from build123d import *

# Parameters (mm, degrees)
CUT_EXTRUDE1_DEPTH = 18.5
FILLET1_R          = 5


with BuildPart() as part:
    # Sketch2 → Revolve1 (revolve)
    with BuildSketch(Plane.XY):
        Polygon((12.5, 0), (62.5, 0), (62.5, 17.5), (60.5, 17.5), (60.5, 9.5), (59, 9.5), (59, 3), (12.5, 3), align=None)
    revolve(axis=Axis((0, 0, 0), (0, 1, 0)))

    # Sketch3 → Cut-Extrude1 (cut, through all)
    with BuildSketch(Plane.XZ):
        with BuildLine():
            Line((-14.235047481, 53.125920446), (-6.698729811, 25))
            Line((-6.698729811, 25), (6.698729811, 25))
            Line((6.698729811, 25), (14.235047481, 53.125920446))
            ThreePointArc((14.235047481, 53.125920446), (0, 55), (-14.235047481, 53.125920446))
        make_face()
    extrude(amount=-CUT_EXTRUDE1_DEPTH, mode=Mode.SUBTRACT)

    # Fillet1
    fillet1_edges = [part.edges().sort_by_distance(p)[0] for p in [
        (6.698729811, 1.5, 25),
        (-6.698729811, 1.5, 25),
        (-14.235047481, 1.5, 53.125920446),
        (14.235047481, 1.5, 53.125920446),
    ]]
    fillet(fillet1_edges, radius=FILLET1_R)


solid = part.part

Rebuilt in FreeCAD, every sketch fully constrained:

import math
import FreeCAD as App
import Part
import Sketcher

V = App.Vector
Q = App.Units.Quantity


def edges_at(feature, points):
    """Names of the edges that pass closest to the given points."""
    edges = feature.Shape.Edges
    near = lambda p: min(range(len(edges)), key=lambda i: edges[i].distToShape(Part.Vertex(*p))[0])
    return sorted({f"Edge{near(p) + 1}" for p in points})

doc = App.newDocument("Part")
body = doc.addObject("PartDesign::Body", "Body")

# Sketch on XY plane
sketch1 = body.newObject("Sketcher::SketchObject", "Sketch")
sketch1.AttachmentSupport = (doc.getObject("XY_Plane"), [""])
sketch1.MapMode = "FlatFace"
sketch1.addGeometry([
    Part.LineSegment(V(12.5, 0, 0), V(62.5, 0, 0)),  # 0
    Part.LineSegment(V(62.5, 0, 0), V(62.5, 17.5, 0)),  # 1
    Part.LineSegment(V(62.5, 17.5, 0), V(60.5, 17.5, 0)),  # 2
    Part.LineSegment(V(60.5, 17.5, 0), V(60.5, 9.5, 0)),  # 3
    Part.LineSegment(V(60.5, 9.5, 0), V(59, 9.5, 0)),  # 4
    Part.LineSegment(V(59, 9.5, 0), V(59, 3, 0)),  # 5
    Part.LineSegment(V(59, 3, 0), V(12.5, 3, 0)),  # 6
    Part.LineSegment(V(12.5, 3, 0), V(12.5, 0, 0)),  # 7
], False)
sketch1.addConstraint([
    Sketcher.Constraint("Coincident", 0, 2, 1, 1),
    Sketcher.Constraint("Coincident", 1, 2, 2, 1),
    Sketcher.Constraint("Coincident", 2, 2, 3, 1),
    Sketcher.Constraint("Coincident", 3, 2, 4, 1),
    Sketcher.Constraint("Coincident", 4, 2, 5, 1),
    Sketcher.Constraint("Coincident", 5, 2, 6, 1),
    Sketcher.Constraint("Coincident", 6, 2, 7, 1),
    Sketcher.Constraint("Coincident", 7, 2, 0, 1),
    Sketcher.Constraint("Horizontal", 0),
    Sketcher.Constraint("Vertical", 1),
    Sketcher.Constraint("Horizontal", 2),
    Sketcher.Constraint("Vertical", 3),
    Sketcher.Constraint("Horizontal", 4),
    Sketcher.Constraint("Vertical", 5),
    Sketcher.Constraint("Horizontal", 6),
    Sketcher.Constraint("Vertical", 7),
    Sketcher.Constraint("PointOnObject", 0, 2, -1),
    Sketcher.Constraint("DistanceX", 0, 1, 0, 2, Q("50 mm")),
    Sketcher.Constraint("DistanceX", 2, 2, 2, 1, Q("2 mm")),
    Sketcher.Constraint("DistanceY", 3, 2, 3, 1, Q("8 mm")),
    Sketcher.Constraint("DistanceY", 7, 2, 7, 1, Q("3 mm")),
    Sketcher.Constraint("DistanceX", 4, 2, 4, 1, Q("1.5 mm")),
    Sketcher.Constraint("DistanceY", 1, 1, 1, 2, Q("17.5 mm")),
    Sketcher.Constraint("DistanceX", -1, 1, 4, 2, Q("59 mm")),
])
revolution = body.newObject("PartDesign::Revolution", "Revolution")
revolution.Profile = sketch1
revolution.ReferenceAxis = (sketch1, ["V_Axis"])
revolution.Angle = 360

# Sketch on XZ plane
sketch2 = body.newObject("Sketcher::SketchObject", "Sketch001")
sketch2.AttachmentSupport = (doc.getObject("XZ_Plane"), [""])
sketch2.MapMode = "FlatFace"
sketch2.addGeometry([
    Part.LineSegment(V(-14.235047, 53.12592, 0), V(-6.69873, 25, 0)),
    Part.LineSegment(V(-6.69873, 25, 0), V(6.69873, 25, 0)),
    Part.LineSegment(V(6.69873, 25, 0), V(14.235047, 53.12592, 0)),
    Part.ArcOfCircle(Part.Circle(V(0, 0, 0), V(0, 0, 1), 55), math.radians(75), math.radians(105)),
], False)
sketch2.addConstraint([
    Sketcher.Constraint("Coincident", 0, 2, 1, 1),
    Sketcher.Constraint("Coincident", 1, 2, 2, 1),
    Sketcher.Constraint("Coincident", 2, 2, 3, 1),
    Sketcher.Constraint("Coincident", 3, 2, 0, 1),
    Sketcher.Constraint("Horizontal", 1),
    Sketcher.Constraint("Coincident", 3, 3, -1, 1),
    Sketcher.Constraint("Horizontal", 2, 2, 3, 2),
    Sketcher.Constraint("Equal", 0, 2),
    Sketcher.Constraint("Radius", 3, Q("55 mm")),
    Sketcher.Constraint("Angle", 0, Q("-75 deg")),
    Sketcher.Constraint("DistanceY", -1, 1, 0, 2, Q("25 mm")),
    Sketcher.Constraint("DistanceX", 1, 1, 1, 2, Q("13.39746 mm")),
])
pocket1 = body.newObject("PartDesign::Pocket", "Pocket")
pocket1.Profile = sketch2
pocket1.Type = "ThroughAll"
doc.recompute()

fillet = body.newObject("PartDesign::Fillet", "Fillet")
fillet.Base = (pocket1, edges_at(pocket1, [
    (6.699, 1.5, 25),
    (-6.699, 1.5, 25),
    (-14.235, 1.5, 53.126),
    (14.235, 1.5, 53.126),
]))
fillet.Radius = 5

doc.recompute()
